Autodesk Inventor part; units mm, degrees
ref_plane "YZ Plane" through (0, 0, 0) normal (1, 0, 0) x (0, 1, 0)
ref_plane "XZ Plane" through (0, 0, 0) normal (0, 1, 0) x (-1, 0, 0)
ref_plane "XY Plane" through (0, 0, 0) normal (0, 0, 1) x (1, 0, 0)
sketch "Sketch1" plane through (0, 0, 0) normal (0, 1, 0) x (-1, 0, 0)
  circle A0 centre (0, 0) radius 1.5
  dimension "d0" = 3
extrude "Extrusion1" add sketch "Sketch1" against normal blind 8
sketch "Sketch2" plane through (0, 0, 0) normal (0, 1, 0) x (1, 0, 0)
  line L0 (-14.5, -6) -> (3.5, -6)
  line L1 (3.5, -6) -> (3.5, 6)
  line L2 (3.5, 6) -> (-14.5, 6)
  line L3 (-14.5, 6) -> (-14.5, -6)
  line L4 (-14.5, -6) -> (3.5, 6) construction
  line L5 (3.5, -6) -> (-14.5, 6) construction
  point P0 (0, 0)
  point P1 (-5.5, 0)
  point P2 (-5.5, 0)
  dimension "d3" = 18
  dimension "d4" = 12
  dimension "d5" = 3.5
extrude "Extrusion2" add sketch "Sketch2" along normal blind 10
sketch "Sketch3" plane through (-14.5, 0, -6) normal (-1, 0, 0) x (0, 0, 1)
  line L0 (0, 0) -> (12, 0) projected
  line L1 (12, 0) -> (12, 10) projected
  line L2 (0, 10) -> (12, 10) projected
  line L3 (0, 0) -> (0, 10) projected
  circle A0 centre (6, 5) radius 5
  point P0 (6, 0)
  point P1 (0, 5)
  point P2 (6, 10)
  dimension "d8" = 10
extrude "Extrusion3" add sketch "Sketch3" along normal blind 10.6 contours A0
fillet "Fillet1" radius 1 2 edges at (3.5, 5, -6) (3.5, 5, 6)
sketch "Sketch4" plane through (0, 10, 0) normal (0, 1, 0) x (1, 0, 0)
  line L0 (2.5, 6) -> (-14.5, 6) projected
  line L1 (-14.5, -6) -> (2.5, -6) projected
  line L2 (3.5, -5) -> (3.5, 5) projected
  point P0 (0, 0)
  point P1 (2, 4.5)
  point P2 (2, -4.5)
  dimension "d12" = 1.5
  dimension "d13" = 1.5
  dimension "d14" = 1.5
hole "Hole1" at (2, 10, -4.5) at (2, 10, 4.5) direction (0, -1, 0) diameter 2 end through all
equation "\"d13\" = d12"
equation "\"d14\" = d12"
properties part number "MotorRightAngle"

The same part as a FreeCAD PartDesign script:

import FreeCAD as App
import Part
import Sketcher

V = App.Vector
Q = App.Units.Quantity


def edges_at(feature, points):
    """Names of the edges that pass closest to the given points."""
    edges = feature.Shape.Edges
    near = lambda p: min(range(len(edges)), key=lambda i: edges[i].distToShape(Part.Vertex(*p))[0])
    return sorted({f"Edge{near(p) + 1}" for p in points})


def add_polygon(sketch, points):
    """Adds a closed chain of lines whose ends are joined by coincident constraints."""
    first, n = sketch.GeometryCount, len(points)
    for a, b in zip(points, points[1:] + points[:1]):
        sketch.addGeometry(Part.LineSegment(App.Vector(*a, 0), App.Vector(*b, 0)), False)
    for i in range(n):
        sketch.addConstraint(Sketcher.Constraint("Coincident", first + i, 2, first + (i + 1) % n, 1))

doc = App.newDocument("Part")
body = doc.addObject("PartDesign::Body", "Body")

# Sketch on XZ plane
sketch1 = body.newObject("Sketcher::SketchObject", "Sketch")
sketch1.AttachmentSupport = (doc.getObject("XZ_Plane"), [""])
sketch1.MapMode = "FlatFace"
sketch1.addGeometry(Part.Circle(V(0, 0, 0), V(0, 0, 1), 1.5), False)
sketch1.addConstraint([
    Sketcher.Constraint("Coincident", 0, 3, -1, 1),
    Sketcher.Constraint("Diameter", 0, Q("3 mm")),
])
pad1 = body.newObject("PartDesign::Pad", "Pad")
pad1.Profile = sketch1
pad1.Length = 8

# Sketch on XZ plane
sketch2 = body.newObject("Sketcher::SketchObject", "Sketch001")
sketch2.AttachmentSupport = (doc.getObject("XZ_Plane"), [""])
sketch2.MapMode = "FlatFace"
add_polygon(sketch2, [(-14, -6), (-14, 6), (4, 6), (4, -6)])  # lines 0-3
sketch2.addConstraint([
    Sketcher.Constraint("Vertical", 0),
    Sketcher.Constraint("Horizontal", 1),
    Sketcher.Constraint("Vertical", 2),
    Sketcher.Constraint("Horizontal", 3),
    Sketcher.Constraint("DistanceX", 1, 1, 1, 2, Q("18 mm")),
    Sketcher.Constraint("DistanceY", 0, 1, 0, 2, Q("12 mm")),
    Sketcher.Constraint("DistanceX", -1, 1, 1, 2, Q("3.5 mm")),
    Sketcher.Constraint("DistanceY", -1, 1, 0, 2, Q("6 mm")),
])
pad2 = body.newObject("PartDesign::Pad", "Pad001")
pad2.Profile = sketch2
pad2.Length = 10
pad2.Reversed = True

# Sketch on YZ plane
sketch3 = body.newObject("Sketcher::SketchObject", "Sketch002")
sketch3.AttachmentSupport = (doc.getObject("YZ_Plane"), [""])
sketch3.MapMode = "FlatFace"
sketch3.AttachmentOffset = App.Placement(V(0, 0, -14.5), App.Rotation())
sketch3.addGeometry(Part.Circle(V(5, 0, 0), V(0, 0, 1), 5), False)
sketch3.addConstraint([
    Sketcher.Constraint("PointOnObject", 0, 3, -1),
    Sketcher.Constraint("Diameter", 0, Q("10 mm")),
    Sketcher.Constraint("DistanceX", -1, 1, 0, 3, Q("5 mm")),
])
pad3 = body.newObject("PartDesign::Pad", "Pad002")
pad3.Profile = sketch3
pad3.Length = 10.6
pad3.Reversed = True
doc.recompute()

fillet = body.newObject("PartDesign::Fillet", "Fillet")
fillet.Base = (pad3, edges_at(pad3, [(3.5, 5, -6), (3.5, 5, 6)]))
fillet.Radius = 1

# Sketch on XZ plane
sketch4 = body.newObject("Sketcher::SketchObject", "Sketch003")
sketch4.AttachmentSupport = (doc.getObject("XZ_Plane"), [""])
sketch4.MapMode = "FlatFace"
sketch4.AttachmentOffset = App.Placement(V(0, 0, -10), App.Rotation())
sketch4.addGeometry([
    Part.Circle(V(2, -4.5, 0), V(0, 0, 1), 1),
    Part.Circle(V(2, 4.5, 0), V(0, 0, 1), 1),
], False)
sketch4.addConstraint([
    Sketcher.Constraint("Equal", 0, 1),
    Sketcher.Constraint("Symmetric", 0, 3, 1, 3, -1),
    Sketcher.Constraint("Diameter", 0, Q("2 mm")),
    Sketcher.Constraint("DistanceX", -1, 1, 0, 3, Q("2 mm")),
    Sketcher.Constraint("DistanceY", 0, 3, 1, 3, Q("9 mm")),
])
doc.recompute()
hole = body.newObject("PartDesign::Hole", "Hole")
hole.Profile = sketch4
hole.ThreadType = "None"
hole.Diameter = 2
hole.DepthType = "ThroughAll"
hole.Reversed = True

doc.recompute()
